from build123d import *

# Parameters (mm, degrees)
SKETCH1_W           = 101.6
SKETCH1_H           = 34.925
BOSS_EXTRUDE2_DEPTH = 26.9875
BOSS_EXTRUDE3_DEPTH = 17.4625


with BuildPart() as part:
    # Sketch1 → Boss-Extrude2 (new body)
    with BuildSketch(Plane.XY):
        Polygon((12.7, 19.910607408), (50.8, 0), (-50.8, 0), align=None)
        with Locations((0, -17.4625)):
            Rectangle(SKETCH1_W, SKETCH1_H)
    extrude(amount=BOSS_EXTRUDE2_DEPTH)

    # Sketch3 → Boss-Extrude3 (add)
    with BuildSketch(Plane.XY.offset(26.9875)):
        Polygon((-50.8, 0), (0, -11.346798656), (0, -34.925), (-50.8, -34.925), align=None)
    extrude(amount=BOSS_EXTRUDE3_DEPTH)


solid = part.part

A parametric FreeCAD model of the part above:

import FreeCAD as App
import Part
import Sketcher
Q = App.Units.Quantity

doc = App.newDocument("Part")
body = doc.addObject("PartDesign::Body", "Body")

# Sketch on XY plane
sketch1 = doc.addObject("Sketcher::SketchObject", "Sketch")
body.addObject(sketch1)
sketch1.AttachmentSupport = (doc.XY_Plane, [""])
sketch1.MapMode = "FlatFace"
sketch1.addGeometry(Part.LineSegment(App.Vector(50.8, 0, 0), App.Vector(12.7, 19.910607, 0)), False)
sketch1.addGeometry(Part.LineSegment(App.Vector(12.7, 19.910607, 0), App.Vector(-50.8, 0, 0)), False)
sketch1.addGeometry(Part.LineSegment(App.Vector(-50.8, 0, 0), App.Vector(-50.8, -34.925, 0)), False)
sketch1.addGeometry(Part.LineSegment(App.Vector(-50.8, -34.925, 0), App.Vector(50.8, -34.925, 0)), False)
sketch1.addGeometry(Part.LineSegment(App.Vector(50.8, -34.925, 0), App.Vector(50.8, 0, 0)), False)
sketch1.addConstraint(Sketcher.Constraint("Coincident", 0, 2, 1, 1))
sketch1.addConstraint(Sketcher.Constraint("Coincident", 1, 2, 2, 1))
sketch1.addConstraint(Sketcher.Constraint("Coincident", 2, 2, 3, 1))
sketch1.addConstraint(Sketcher.Constraint("Coincident", 3, 2, 4, 1))
sketch1.addConstraint(Sketcher.Constraint("Coincident", 4, 2, 0, 1))
sketch1.addConstraint(Sketcher.Constraint("Vertical", 2))
sketch1.addConstraint(Sketcher.Constraint("Horizontal", 3))
sketch1.addConstraint(Sketcher.Constraint("Vertical", 4))
sketch1.addConstraint(Sketcher.Constraint("Symmetric", 1, 2, 4, 2, -1, 1))
sketch1.addConstraint(Sketcher.Constraint("PointOnObject", 1, 2, -1))
sketch1.addConstraint(Sketcher.Constraint("DistanceX", 3, 1, 3, 2, Q("4 in")))
sketch1.addConstraint(Sketcher.Constraint("DistanceX", -1, 1, 0, 2, Q("0.5 in")))
sketch1.addConstraint(Sketcher.Constraint("DistanceY", 2, 2, 2, 1, Q("1.375 in")))
sketch1.addConstraint(Sketcher.Constraint("Distance", 0, Q("42.988862 mm")))
pad1 = doc.addObject("PartDesign::Pad", "Pad")
body.addObject(pad1)
pad1.Profile = sketch1
pad1.Length = Q("1.0625 in")

# Sketch on XY plane
sketch2 = doc.addObject("Sketcher::SketchObject", "Sketch001")
body.addObject(sketch2)
sketch2.AttachmentSupport = (doc.XY_Plane, [""])
sketch2.MapMode = "FlatFace"
sketch2.AttachmentOffset = App.Placement(App.Vector(0, 0, 1.0625 * 25.4), App.Rotation())
sketch2.addGeometry(Part.LineSegment(App.Vector(0, -11.346799, 0), App.Vector(-50.8, 0, 0)), False)
sketch2.addGeometry(Part.LineSegment(App.Vector(-50.8, 0, 0), App.Vector(-50.8, -34.925, 0)), False)
sketch2.addGeometry(Part.LineSegment(App.Vector(-50.8, -34.925, 0), App.Vector(0, -34.925, 0)), False)
sketch2.addGeometry(Part.LineSegment(App.Vector(0, -34.925, 0), App.Vector(0, -11.346799, 0)), False)
sketch2.addConstraint(Sketcher.Constraint("Coincident", 0, 2, 1, 1))
sketch2.addConstraint(Sketcher.Constraint("Coincident", 1, 2, 2, 1))
sketch2.addConstraint(Sketcher.Constraint("Coincident", 2, 2, 3, 1))
sketch2.addConstraint(Sketcher.Constraint("Coincident", 3, 2, 0, 1))
sketch2.addConstraint(Sketcher.Constraint("Vertical", 1))
sketch2.addConstraint(Sketcher.Constraint("Horizontal", 2))
sketch2.addConstraint(Sketcher.Constraint("Vertical", 3))
sketch2.addConstraint(Sketcher.Constraint("PointOnObject", 0, 2, -1))
sketch2.addConstraint(Sketcher.Constraint("PointOnObject", 2, 2, -2))
sketch2.addConstraint(Sketcher.Constraint("DistanceX", 2, 1, 2, 2, Q("2 in")))
sketch2.addConstraint(Sketcher.Constraint("DistanceY", 1, 2, 1, 1, Q("1.375 in")))
sketch2.addConstraint(Sketcher.Constraint("DistanceY", 3, 1, 3, 2, Q("23.578201 mm")))
pad2 = doc.addObject("PartDesign::Pad", "Pad001")
body.addObject(pad2)
pad2.Profile = sketch2
pad2.Length = Q("0.6875 in")

doc.recompute()
